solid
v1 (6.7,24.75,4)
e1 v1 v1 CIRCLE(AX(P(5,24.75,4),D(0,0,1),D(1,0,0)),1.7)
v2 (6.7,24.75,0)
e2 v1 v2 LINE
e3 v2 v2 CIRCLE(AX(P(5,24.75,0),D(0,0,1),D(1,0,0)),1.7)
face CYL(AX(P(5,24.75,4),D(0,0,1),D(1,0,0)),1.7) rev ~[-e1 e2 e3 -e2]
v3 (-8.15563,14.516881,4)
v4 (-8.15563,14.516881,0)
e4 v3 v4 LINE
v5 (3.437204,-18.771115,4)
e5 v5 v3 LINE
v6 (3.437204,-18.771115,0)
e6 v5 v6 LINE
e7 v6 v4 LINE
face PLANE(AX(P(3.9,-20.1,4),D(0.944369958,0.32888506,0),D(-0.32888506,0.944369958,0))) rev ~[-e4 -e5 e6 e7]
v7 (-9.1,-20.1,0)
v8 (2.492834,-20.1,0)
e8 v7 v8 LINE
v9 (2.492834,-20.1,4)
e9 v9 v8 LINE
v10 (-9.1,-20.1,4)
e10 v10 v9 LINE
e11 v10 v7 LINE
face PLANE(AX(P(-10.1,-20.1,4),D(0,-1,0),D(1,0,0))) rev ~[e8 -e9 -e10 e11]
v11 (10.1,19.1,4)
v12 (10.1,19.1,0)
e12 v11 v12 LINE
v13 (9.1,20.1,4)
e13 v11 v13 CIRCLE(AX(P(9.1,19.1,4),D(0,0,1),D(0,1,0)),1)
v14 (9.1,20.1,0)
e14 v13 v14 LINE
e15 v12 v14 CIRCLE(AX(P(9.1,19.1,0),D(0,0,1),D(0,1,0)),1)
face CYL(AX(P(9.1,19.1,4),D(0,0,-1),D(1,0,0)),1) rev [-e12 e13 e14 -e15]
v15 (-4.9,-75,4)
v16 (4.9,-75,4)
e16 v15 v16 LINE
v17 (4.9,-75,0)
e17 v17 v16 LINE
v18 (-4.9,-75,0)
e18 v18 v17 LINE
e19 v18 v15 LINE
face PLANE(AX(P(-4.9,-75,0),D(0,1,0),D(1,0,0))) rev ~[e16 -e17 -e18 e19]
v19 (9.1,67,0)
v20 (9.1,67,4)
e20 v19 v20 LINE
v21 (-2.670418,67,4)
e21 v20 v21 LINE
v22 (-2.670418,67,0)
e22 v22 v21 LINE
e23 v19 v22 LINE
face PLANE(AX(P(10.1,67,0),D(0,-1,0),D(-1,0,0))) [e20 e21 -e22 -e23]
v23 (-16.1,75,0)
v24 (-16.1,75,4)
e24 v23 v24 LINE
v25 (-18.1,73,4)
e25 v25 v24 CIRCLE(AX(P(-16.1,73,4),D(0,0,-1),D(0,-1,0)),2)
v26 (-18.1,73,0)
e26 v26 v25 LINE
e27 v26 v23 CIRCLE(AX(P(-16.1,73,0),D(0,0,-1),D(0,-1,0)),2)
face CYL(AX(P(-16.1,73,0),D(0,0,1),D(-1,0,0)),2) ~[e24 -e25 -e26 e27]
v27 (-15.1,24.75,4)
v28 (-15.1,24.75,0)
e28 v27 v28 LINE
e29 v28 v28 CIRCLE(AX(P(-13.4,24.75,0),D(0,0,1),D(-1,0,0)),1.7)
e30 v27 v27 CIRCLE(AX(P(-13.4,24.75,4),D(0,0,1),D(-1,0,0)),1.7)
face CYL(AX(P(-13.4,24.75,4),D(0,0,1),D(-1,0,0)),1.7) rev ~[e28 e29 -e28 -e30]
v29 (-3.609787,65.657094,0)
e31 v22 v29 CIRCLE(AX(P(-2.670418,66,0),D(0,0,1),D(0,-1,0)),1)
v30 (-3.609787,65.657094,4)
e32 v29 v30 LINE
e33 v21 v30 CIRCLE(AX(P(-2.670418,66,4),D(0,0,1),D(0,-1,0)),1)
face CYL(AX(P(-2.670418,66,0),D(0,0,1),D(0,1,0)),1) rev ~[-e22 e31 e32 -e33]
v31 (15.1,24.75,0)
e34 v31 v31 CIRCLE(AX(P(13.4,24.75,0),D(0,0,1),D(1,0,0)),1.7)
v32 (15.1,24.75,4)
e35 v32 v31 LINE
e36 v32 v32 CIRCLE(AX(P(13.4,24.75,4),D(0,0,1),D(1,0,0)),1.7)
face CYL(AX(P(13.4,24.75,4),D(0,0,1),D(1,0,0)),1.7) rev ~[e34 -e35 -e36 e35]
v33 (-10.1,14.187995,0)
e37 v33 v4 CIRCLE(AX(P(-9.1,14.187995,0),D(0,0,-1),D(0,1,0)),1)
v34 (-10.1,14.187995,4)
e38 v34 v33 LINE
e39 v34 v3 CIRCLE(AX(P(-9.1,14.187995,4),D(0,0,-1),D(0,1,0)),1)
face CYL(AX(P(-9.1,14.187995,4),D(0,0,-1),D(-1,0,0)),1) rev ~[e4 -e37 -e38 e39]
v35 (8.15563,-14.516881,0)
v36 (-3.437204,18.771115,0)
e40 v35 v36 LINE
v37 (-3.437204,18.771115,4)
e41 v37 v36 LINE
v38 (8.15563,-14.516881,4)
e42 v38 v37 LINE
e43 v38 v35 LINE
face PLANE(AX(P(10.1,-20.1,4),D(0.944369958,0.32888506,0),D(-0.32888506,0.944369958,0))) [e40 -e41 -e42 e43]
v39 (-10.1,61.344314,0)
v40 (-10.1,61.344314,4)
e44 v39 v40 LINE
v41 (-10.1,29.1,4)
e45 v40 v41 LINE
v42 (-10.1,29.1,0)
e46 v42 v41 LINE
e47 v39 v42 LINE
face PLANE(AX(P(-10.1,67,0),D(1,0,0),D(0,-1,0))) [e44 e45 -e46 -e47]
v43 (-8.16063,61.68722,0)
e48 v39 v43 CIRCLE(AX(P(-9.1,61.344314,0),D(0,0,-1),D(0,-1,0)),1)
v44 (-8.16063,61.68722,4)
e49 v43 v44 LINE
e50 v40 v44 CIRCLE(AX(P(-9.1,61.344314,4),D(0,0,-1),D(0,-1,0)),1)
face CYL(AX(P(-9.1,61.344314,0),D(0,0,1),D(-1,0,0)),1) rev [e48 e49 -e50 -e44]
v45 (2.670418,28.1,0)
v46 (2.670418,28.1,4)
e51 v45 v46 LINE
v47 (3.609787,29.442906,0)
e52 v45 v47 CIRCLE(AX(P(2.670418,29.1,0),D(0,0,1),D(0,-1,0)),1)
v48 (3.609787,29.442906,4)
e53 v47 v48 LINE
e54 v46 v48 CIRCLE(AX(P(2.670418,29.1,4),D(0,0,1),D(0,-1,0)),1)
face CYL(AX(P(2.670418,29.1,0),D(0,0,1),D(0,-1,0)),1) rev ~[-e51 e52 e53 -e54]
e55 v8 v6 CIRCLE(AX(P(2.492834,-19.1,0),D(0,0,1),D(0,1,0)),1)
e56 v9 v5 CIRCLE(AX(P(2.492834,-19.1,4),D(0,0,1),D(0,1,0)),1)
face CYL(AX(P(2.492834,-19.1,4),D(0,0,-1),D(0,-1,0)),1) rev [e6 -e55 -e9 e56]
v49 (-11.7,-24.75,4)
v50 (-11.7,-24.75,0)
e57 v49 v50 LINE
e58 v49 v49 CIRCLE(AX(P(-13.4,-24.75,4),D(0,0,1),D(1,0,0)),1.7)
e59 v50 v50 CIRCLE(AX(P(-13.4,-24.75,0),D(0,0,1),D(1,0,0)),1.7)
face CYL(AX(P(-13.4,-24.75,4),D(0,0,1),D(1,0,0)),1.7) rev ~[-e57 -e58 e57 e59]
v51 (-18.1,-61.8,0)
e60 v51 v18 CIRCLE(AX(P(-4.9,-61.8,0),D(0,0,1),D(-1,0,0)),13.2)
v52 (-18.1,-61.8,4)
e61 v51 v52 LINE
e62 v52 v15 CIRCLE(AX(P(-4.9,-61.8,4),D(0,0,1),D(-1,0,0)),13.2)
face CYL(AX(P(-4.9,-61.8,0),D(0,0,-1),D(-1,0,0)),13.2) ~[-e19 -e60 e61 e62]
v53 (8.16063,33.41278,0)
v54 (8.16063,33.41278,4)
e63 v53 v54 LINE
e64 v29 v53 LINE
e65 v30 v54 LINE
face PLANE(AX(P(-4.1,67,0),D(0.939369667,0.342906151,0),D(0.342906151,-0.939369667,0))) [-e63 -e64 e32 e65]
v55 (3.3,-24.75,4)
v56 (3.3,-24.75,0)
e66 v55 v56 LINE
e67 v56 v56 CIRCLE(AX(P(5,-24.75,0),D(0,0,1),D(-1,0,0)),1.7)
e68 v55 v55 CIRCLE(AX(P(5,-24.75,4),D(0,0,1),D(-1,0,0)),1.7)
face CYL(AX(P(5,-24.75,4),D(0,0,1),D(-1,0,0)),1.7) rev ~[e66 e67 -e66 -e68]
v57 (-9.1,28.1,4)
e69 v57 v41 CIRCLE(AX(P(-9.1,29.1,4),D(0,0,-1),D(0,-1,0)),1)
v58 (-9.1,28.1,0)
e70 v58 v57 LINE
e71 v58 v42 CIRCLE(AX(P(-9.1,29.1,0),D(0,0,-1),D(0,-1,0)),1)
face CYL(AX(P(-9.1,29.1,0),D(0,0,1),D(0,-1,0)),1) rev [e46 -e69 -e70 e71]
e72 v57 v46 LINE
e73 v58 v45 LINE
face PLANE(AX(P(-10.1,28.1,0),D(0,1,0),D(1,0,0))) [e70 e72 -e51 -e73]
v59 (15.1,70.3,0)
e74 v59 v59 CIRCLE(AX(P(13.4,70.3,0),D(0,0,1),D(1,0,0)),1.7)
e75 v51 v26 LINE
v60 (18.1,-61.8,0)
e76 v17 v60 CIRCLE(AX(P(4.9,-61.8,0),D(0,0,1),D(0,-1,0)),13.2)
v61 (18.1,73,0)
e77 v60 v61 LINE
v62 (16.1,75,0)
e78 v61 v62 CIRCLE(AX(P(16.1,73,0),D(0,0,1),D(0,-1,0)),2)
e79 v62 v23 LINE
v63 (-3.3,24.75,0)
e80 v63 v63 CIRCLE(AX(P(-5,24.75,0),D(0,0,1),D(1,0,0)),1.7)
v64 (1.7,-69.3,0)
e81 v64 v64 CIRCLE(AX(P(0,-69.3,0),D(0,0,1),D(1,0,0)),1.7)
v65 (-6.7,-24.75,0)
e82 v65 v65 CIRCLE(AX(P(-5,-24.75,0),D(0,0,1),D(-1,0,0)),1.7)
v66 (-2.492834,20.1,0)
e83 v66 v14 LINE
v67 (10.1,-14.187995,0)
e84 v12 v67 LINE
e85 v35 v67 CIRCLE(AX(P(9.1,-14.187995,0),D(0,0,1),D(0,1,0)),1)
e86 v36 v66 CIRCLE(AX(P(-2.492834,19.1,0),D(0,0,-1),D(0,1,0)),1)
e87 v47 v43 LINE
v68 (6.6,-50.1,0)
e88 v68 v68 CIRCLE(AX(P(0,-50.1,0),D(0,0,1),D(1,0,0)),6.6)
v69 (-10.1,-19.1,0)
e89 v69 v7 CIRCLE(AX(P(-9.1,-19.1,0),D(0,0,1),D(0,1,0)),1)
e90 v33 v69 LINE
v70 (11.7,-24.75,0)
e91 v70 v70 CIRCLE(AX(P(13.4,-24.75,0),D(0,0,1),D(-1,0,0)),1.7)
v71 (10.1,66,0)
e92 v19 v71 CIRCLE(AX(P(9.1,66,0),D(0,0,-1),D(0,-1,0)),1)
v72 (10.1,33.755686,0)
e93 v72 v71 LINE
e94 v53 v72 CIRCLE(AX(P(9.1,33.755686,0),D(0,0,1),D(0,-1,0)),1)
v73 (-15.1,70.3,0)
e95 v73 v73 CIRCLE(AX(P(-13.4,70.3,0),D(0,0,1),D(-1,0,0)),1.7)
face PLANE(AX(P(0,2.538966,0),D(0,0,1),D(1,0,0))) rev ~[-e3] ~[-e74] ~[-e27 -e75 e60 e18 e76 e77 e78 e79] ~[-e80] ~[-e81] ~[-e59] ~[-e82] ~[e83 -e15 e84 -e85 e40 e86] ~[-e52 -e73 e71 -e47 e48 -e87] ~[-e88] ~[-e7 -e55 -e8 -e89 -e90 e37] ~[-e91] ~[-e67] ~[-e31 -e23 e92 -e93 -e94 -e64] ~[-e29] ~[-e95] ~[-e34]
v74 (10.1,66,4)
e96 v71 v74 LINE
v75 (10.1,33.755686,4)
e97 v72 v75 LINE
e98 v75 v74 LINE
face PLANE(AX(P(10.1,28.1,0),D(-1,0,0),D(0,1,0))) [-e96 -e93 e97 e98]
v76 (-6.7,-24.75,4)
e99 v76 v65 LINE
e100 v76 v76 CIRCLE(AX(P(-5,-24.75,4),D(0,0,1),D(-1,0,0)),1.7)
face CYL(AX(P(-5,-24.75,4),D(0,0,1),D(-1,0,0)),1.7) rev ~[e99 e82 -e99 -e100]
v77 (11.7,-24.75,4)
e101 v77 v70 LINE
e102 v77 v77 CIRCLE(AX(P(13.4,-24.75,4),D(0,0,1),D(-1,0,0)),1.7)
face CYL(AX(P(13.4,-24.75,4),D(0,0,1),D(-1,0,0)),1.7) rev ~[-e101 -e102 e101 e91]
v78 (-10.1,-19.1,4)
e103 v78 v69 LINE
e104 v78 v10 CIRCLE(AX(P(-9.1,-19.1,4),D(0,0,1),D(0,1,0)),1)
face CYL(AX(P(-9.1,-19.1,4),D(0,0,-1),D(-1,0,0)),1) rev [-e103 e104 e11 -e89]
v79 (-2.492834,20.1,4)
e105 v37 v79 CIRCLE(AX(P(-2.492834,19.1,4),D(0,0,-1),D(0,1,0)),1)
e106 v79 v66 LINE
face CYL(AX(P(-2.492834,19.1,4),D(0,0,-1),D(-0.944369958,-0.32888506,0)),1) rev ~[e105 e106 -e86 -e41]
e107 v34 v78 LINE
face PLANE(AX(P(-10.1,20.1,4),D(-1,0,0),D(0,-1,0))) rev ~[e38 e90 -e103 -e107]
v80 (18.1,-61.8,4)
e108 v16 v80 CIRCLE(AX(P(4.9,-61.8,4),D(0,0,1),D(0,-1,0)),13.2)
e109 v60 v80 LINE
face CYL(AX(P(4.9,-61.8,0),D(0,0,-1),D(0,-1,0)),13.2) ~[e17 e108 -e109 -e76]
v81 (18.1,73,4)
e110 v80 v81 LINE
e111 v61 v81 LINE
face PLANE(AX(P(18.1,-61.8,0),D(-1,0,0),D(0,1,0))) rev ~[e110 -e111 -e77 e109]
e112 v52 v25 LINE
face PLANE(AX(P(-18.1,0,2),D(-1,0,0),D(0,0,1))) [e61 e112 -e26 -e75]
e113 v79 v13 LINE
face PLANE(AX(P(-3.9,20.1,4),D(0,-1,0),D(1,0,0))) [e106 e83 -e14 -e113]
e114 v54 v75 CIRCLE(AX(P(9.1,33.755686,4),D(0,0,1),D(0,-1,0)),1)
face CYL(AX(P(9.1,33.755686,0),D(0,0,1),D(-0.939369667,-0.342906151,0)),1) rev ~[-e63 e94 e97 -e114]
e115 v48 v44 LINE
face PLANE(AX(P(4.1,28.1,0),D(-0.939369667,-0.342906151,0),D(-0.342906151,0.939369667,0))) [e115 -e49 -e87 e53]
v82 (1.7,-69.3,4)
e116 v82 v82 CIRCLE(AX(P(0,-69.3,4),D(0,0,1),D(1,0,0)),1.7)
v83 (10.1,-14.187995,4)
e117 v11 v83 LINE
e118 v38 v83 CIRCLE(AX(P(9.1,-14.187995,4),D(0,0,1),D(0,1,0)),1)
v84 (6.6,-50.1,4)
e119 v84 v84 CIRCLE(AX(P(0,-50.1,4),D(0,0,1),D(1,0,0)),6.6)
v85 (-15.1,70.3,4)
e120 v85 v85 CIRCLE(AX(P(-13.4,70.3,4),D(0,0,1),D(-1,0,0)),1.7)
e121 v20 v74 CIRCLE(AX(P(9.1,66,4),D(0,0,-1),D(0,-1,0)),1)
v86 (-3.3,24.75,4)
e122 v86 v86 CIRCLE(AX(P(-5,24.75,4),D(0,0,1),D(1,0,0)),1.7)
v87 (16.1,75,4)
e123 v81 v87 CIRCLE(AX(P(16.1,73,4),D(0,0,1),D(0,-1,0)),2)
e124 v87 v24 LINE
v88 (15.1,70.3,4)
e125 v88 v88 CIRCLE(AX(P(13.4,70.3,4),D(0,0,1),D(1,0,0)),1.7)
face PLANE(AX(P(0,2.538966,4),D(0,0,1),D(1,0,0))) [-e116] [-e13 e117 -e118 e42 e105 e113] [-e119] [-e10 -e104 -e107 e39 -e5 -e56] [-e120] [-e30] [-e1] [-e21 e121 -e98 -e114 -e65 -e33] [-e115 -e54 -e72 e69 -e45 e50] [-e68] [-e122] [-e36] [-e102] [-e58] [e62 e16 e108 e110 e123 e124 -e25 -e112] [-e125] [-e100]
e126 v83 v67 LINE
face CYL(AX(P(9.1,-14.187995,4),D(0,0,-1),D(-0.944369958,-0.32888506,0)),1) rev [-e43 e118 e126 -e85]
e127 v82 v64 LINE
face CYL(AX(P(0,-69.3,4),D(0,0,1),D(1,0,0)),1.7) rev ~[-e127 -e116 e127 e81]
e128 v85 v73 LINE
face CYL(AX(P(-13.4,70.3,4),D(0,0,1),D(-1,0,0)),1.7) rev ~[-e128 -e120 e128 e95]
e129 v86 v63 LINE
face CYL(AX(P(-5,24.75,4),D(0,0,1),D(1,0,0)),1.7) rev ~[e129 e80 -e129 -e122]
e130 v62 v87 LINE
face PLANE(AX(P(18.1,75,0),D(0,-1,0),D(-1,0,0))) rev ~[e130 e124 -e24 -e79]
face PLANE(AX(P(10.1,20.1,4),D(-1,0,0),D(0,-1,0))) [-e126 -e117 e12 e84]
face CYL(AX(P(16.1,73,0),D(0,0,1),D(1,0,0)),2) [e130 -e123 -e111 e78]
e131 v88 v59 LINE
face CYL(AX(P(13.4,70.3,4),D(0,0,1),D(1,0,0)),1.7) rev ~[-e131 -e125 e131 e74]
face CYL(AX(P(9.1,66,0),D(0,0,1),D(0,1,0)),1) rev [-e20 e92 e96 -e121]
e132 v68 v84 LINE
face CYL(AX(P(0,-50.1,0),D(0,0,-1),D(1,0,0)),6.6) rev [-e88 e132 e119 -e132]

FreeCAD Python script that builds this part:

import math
import FreeCAD as App
import Part
import Sketcher
from FreeCAD import Vector


def edges_at(feature, points):
    """Names of the edges that pass closest to the given points."""
    edges = feature.Shape.Edges
    near = lambda p: min(range(len(edges)), key=lambda i: edges[i].distToShape(Part.Vertex(*p))[0])
    return sorted({f"Edge{near(p) + 1}" for p in points})


def add_polygon(sketch, points):
    """Adds a closed chain of lines whose ends are joined by coincident constraints."""
    first, n = sketch.GeometryCount, len(points)
    for a, b in zip(points, points[1:] + points[:1]):
        sketch.addGeometry(Part.LineSegment(App.Vector(*a, 0), App.Vector(*b, 0)), False)
    for i in range(n):
        sketch.addConstraint(Sketcher.Constraint("Coincident", first + i, 2, first + (i + 1) % n, 1))

doc = App.newDocument("Part")
body = doc.addObject("PartDesign::Body", "Body")

sketch1 = body.newObject("Sketcher::SketchObject", "Sketch")
sketch1.AttachmentSupport = (doc.getObject("XY_Plane"), [""])
sketch1.MapMode = "FlatFace"
sketch1.addGeometry(Part.LineSegment(Vector(-5, -75, 0), Vector(5, -75, 0)), False)
sketch1.addGeometry(Part.ArcOfCircle(Part.Circle(Vector(5, -62, 0), Vector(0, 0, 1), 13), math.radians(-90), math.radians(0)), False)
sketch1.addGeometry(Part.LineSegment(Vector(18, -62, 0), Vector(18, 75, 0)), False)
sketch1.addGeometry(Part.LineSegment(Vector(18, 75, 0), Vector(-18, 75, 0)), False)
sketch1.addGeometry(Part.LineSegment(Vector(-18, 75, 0), Vector(-18, -62, 0)), False)
sketch1.addGeometry(Part.ArcOfCircle(Part.Circle(Vector(-5, -62, 0), Vector(0, 0, 1), 13), math.radians(180), math.radians(270)), False)
sketch1.addGeometry(Part.Circle(Vector(0, -50, 0), Vector(0, 0, 1), 7), False)
add_polygon(sketch1, [(10, -20), (-10, -20), (-10, 20), (10, 20)])
add_polygon(sketch1, [(4, 28), (-10, 28), (-10, 67)])
add_polygon(sketch1, [(-4, 67), (10, 67), (10, 28)])
sketch1.addConstraint(Sketcher.Constraint("Tangent", 0, 2, 1, 1))
sketch1.addConstraint(Sketcher.Constraint("Tangent", 1, 2, 2, 1))
sketch1.addConstraint(Sketcher.Constraint("Coincident", 2, 2, 3, 1))
sketch1.addConstraint(Sketcher.Constraint("Coincident", 3, 2, 4, 1))
sketch1.addConstraint(Sketcher.Constraint("Tangent", 4, 2, 5, 1))
sketch1.addConstraint(Sketcher.Constraint("Tangent", 5, 2, 0, 1))
sketch1.addConstraint(Sketcher.Constraint("Horizontal", 0))
sketch1.addConstraint(Sketcher.Constraint("Vertical", 2))
sketch1.addConstraint(Sketcher.Constraint("Horizontal", 3))
sketch1.addConstraint(Sketcher.Constraint("Vertical", 4))
sketch1.addConstraint(Sketcher.Constraint("Horizontal", 7))
sketch1.addConstraint(Sketcher.Constraint("Vertical", 8))
sketch1.addConstraint(Sketcher.Constraint("Horizontal", 9))
sketch1.addConstraint(Sketcher.Constraint("Vertical", 10))
sketch1.addConstraint(Sketcher.Constraint("Horizontal", 11))
sketch1.addConstraint(Sketcher.Constraint("Vertical", 12))
sketch1.addConstraint(Sketcher.Constraint("Horizontal", 14))
sketch1.addConstraint(Sketcher.Constraint("Vertical", 15))
sketch1.addConstraint(Sketcher.Constraint("Equal", 1, 5))
sketch1.addConstraint(Sketcher.Constraint("Symmetric", 7, 2, 9, 2, -1, 1))
sketch1.addConstraint(Sketcher.Constraint("Symmetric", 12, 2, 14, 2, -2))
sketch1.addConstraint(Sketcher.Constraint("PointOnObject", 6, 3, -2))
sketch1.addConstraint(Sketcher.Constraint("Parallel", 13, 16))
sketch1.addConstraint(Sketcher.Constraint("Horizontal", 13, 2, 15, 2))
sketch1.addConstraint(Sketcher.Constraint("Vertical", 8, 2, 11, 2))
sketch1.addConstraint(Sketcher.Constraint("Diameter", 6, 13.2))
sketch1.addConstraint(Sketcher.Constraint("Radius", 1, 13.2))
sketch1.addConstraint(Sketcher.Constraint("DistanceX", 0, 1, 0, 2, 9.8))
sketch1.addConstraint(Sketcher.Constraint("DistanceX", 7, 2, 7, 1, 20.2))
sketch1.addConstraint(Sketcher.Constraint("DistanceX", 11, 2, 11, 1, 14.2))
sketch1.addConstraint(Sketcher.Constraint("DistanceY", 2, 1, 2, 2, 136.8))
sketch1.addConstraint(Sketcher.Constraint("DistanceY", 8, 1, 8, 2, 40.2))
sketch1.addConstraint(Sketcher.Constraint("DistanceY", 12, 1, 12, 2, 38.9))
sketch1.addConstraint(Sketcher.Constraint("DistanceY", 0, 2, -1, 1, 75.0))
sketch1.addConstraint(Sketcher.Constraint("DistanceY", -1, 1, 12, 2, 67.0))
sketch1.addConstraint(Sketcher.Constraint("DistanceY", 6, 3, 7, 2, 30.0))
sketch1.addConstraint(Sketcher.Constraint("DistanceX", 4, 2, 7, 2, 8.0))
pad1 = body.newObject("PartDesign::Pad", "Pad")
pad1.Profile = sketch1
pad1.Length = 4
doc.recompute()

fillet = body.newObject("PartDesign::Fillet", "Fillet")
fillet.Base = (pad1, edges_at(pad1, [
    (10.1, 28.1, 2),
    (10.1, 67, 2),
    (-4.1, 67, 2),
    (-10.1, 67, 2),
    (-10.1, 28.1, 2),
    (4.1, 28.1, 2),
]))
fillet.Radius = 1
doc.recompute()

fillet2 = body.newObject("PartDesign::Fillet", "Fillet001")
fillet2.Base = (fillet, edges_at(fillet, [(-18.1, 75, 2), (18.1, 75, 2)]))
fillet2.Radius = 2

sketch2 = body.newObject("Sketcher::SketchObject", "Sketch001")
sketch2.AttachmentSupport = (doc.getObject("XY_Plane"), [""])
sketch2.MapMode = "FlatFace"
sketch2.AttachmentOffset = App.Placement(Vector(0, 0, 4), App.Rotation())
sketch2.addGeometry(Part.Circle(Vector(5, 24.8, 0), Vector(0, 0, 1), 1.7), False)
sketch2.addGeometry(Part.Circle(Vector(-5, 24.8, 0), Vector(0, 0, 1), 1.7), False)
sketch2.addGeometry(Part.Circle(Vector(-5, -24.8, 0), Vector(0, 0, 1), 1.7), False)
sketch2.addGeometry(Part.Circle(Vector(5, -24.8, 0), Vector(0, 0, 1), 1.7), False)
sketch2.addGeometry(Part.Circle(Vector(13.4, 24.8, 0), Vector(0, 0, 1), 1.7), False)
sketch2.addGeometry(Part.Circle(Vector(-13.4, 24.8, 0), Vector(0, 0, 1), 1.7), False)
sketch2.addGeometry(Part.Circle(Vector(13.4, -24.8, 0), Vector(0, 0, 1), 1.7), False)
sketch2.addGeometry(Part.Circle(Vector(-13.4, -24.8, 0), Vector(0, 0, 1), 1.7), False)
sketch2.addGeometry(Part.Circle(Vector(13.4, 70.3, 0), Vector(0, 0, 1), 1.7), False)
sketch2.addGeometry(Part.Circle(Vector(-13.4, 70.3, 0), Vector(0, 0, 1), 1.7), False)
sketch2.addGeometry(Part.Circle(Vector(0, -69.3, 0), Vector(0, 0, 1), 1.7), False)
sketch2.addConstraint(Sketcher.Constraint("Equal", 0, 1))
sketch2.addConstraint(Sketcher.Constraint("Equal", 1, 2))
sketch2.addConstraint(Sketcher.Constraint("Equal", 2, 3))
sketch2.addConstraint(Sketcher.Constraint("Equal", 3, 4))
sketch2.addConstraint(Sketcher.Constraint("Equal", 4, 5))
sketch2.addConstraint(Sketcher.Constraint("Equal", 5, 6))
sketch2.addConstraint(Sketcher.Constraint("Equal", 6, 7))
sketch2.addConstraint(Sketcher.Constraint("Equal", 7, 8))
sketch2.addConstraint(Sketcher.Constraint("Equal", 8, 9))
sketch2.addConstraint(Sketcher.Constraint("Equal", 9, 10))
sketch2.addConstraint(Sketcher.Constraint("Symmetric", 0, 3, 2, 3, -1, 1))
sketch2.addConstraint(Sketcher.Constraint("Symmetric", 1, 3, 3, 3, -1, 1))
sketch2.addConstraint(Sketcher.Constraint("Symmetric", 5, 3, 6, 3, -1, 1))
sketch2.addConstraint(Sketcher.Constraint("Symmetric", 4, 3, 7, 3, -1, 1))
sketch2.addConstraint(Sketcher.Constraint("Symmetric", 0, 3, 1, 3, -2))
sketch2.addConstraint(Sketcher.Constraint("Symmetric", 4, 3, 5, 3, -2))
sketch2.addConstraint(Sketcher.Constraint("Symmetric", 8, 3, 9, 3, -2))
sketch2.addConstraint(Sketcher.Constraint("PointOnObject", 10, 3, -2))
sketch2.addConstraint(Sketcher.Constraint("Horizontal", 1, 3, 4, 3))
sketch2.addConstraint(Sketcher.Constraint("Vertical", 6, 3, 8, 3))
sketch2.addConstraint(Sketcher.Constraint("Diameter", 0, 3.4))
sketch2.addConstraint(Sketcher.Constraint("DistanceX", -1, 1, 0, 3, 5.0))
sketch2.addConstraint(Sketcher.Constraint("DistanceX", -1, 1, 4, 3, 13.4))
sketch2.addConstraint(Sketcher.Constraint("DistanceY", -1, 1, 8, 3, 70.3))
sketch2.addConstraint(Sketcher.Constraint("DistanceY", 10, 3, -1, 1, 69.3))
sketch2.addConstraint(Sketcher.Constraint("DistanceY", 2, 3, 1, 3, 49.5))
pocket1 = body.newObject("PartDesign::Pocket", "Pocket")
pocket1.Profile = sketch2
pocket1.Type = "ThroughAll"

sketch3 = body.newObject("Sketcher::SketchObject", "Sketch002")
sketch3.AttachmentSupport = (doc.getObject("YZ_Plane"), [""])
sketch3.MapMode = "FlatFace"
sketch3.AttachmentOffset = App.Placement(Vector(0, 0, 10.1), App.Rotation())
add_polygon(sketch3, [(20.1, 0), (-20.1, 0), (-20.1, 4), (20.1, 4)])
sketch3.addConstraint(Sketcher.Constraint("Horizontal", 0))
sketch3.addConstraint(Sketcher.Constraint("Vertical", 1))
sketch3.addConstraint(Sketcher.Constraint("Horizontal", 2))
sketch3.addConstraint(Sketcher.Constraint("Vertical", 3))
sketch3.addConstraint(Sketcher.Constraint("Symmetric", 0, 2, 3, 2, -1, 1))
sketch3.addConstraint(Sketcher.Constraint("DistanceY", 1, 1, 1, 2, 4.0))
sketch3.addConstraint(Sketcher.Constraint("DistanceX", 0, 2, 0, 1, 40.2))
pad2 = body.newObject("PartDesign::Pad", "Pad001")
pad2.Profile = sketch3
pad2.Type = "UpToLast"
pad2.Reversed = True

sketch4 = body.newObject("Sketcher::SketchObject", "Sketch003")
sketch4.AttachmentSupport = (doc.getObject("XY_Plane"), [""])
sketch4.MapMode = "FlatFace"
sketch4.AttachmentOffset = App.Placement(Vector(0, 0, 4), App.Rotation())
add_polygon(sketch4, [(-10, 20), (-10, -20), (4, -20)])
add_polygon(sketch4, [(10, 20), (-4, 20), (10, -20)])
sketch4.addConstraint(Sketcher.Constraint("Vertical", 0))
sketch4.addConstraint(Sketcher.Constraint("Horizontal", 1))
sketch4.addConstraint(Sketcher.Constraint("Horizontal", 3))
sketch4.addConstraint(Sketcher.Constraint("Vertical", 5))
sketch4.addConstraint(Sketcher.Constraint("Symmetric", 1, 2, 3, 2, -1, 1))
sketch4.addConstraint(Sketcher.Constraint("Symmetric", 2, 2, 4, 2, -1, 1))
sketch4.addConstraint(Sketcher.Constraint("Horizontal", 2, 2, 3, 2))
sketch4.addConstraint(Sketcher.Constraint("DistanceX", 1, 1, 1, 2, 14.0))
sketch4.addConstraint(Sketcher.Constraint("DistanceY", 0, 2, 0, 1, 40.2))
sketch4.addConstraint(Sketcher.Constraint("DistanceX", 0, 2, -1, 1, 10.1))
pocket2 = body.newObject("PartDesign::Pocket", "Pocket001")
pocket2.Profile = sketch4
pocket2.Type = "ThroughAll"
doc.recompute()

fillet3 = body.newObject("PartDesign::Fillet", "Fillet002")
fillet3.Base = (pocket2, edges_at(pocket2, [
    (10.1, -20.1, 2),
    (-3.9, 20.1, 2),
    (10.1, 20.1, 2),
    (-10.1, 20.1, 2),
    (3.9, -20.1, 2),
    (-10.1, -20.1, 2),
]))
fillet3.Radius = 1

doc.recompute()
